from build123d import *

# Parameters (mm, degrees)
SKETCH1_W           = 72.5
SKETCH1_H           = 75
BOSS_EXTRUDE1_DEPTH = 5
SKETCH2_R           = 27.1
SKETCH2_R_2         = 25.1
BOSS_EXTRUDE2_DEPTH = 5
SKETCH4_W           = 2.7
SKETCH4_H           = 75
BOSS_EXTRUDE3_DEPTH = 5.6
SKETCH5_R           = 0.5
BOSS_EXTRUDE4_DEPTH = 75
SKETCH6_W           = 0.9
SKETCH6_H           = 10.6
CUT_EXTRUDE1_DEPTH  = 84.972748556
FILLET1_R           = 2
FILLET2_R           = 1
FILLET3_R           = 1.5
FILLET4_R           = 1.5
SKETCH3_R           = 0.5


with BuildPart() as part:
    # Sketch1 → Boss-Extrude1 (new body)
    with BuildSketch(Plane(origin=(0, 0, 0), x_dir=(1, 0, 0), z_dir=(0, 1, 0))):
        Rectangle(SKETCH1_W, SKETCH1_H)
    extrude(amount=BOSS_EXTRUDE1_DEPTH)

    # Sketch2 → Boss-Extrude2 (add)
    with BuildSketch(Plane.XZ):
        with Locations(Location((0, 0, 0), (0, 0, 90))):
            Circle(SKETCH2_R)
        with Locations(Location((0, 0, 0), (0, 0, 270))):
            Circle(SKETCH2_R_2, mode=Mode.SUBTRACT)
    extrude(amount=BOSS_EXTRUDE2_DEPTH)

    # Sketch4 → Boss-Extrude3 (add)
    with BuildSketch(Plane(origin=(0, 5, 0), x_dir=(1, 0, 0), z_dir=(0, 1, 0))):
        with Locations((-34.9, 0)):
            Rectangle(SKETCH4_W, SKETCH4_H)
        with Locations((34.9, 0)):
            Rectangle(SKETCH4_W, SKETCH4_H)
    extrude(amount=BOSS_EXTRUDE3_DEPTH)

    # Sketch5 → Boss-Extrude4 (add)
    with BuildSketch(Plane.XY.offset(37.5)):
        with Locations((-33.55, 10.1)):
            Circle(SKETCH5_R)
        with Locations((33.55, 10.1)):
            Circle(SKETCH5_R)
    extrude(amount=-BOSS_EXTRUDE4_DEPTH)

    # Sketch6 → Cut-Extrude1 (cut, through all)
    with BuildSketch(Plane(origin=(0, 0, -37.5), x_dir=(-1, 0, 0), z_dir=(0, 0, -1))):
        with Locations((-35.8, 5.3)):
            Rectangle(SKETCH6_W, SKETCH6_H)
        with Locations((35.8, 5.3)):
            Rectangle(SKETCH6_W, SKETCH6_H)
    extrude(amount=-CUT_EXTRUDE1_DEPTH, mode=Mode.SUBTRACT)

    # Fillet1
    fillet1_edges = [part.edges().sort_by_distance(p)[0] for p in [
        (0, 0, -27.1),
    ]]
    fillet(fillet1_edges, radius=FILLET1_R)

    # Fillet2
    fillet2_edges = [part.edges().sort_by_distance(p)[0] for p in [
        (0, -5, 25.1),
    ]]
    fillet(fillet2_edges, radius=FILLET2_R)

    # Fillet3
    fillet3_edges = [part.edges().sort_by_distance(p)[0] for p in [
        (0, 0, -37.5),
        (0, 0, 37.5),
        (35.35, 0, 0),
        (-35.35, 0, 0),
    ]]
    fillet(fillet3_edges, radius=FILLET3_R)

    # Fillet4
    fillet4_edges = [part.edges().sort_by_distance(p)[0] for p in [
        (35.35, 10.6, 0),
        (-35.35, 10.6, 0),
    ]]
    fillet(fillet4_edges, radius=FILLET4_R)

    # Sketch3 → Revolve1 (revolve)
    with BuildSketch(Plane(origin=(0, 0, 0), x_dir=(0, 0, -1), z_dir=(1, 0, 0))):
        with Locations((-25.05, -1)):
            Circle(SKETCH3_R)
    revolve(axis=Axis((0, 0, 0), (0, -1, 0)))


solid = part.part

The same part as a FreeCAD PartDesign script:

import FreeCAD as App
import Part
import Sketcher
from FreeCAD import Vector


def edges_at(feature, points):
    """Names of the edges that pass closest to the given points."""
    edges = feature.Shape.Edges
    near = lambda p: min(range(len(edges)), key=lambda i: edges[i].distToShape(Part.Vertex(*p))[0])
    return sorted({f"Edge{near(p) + 1}" for p in points})

doc = App.newDocument("Part")
body = doc.addObject("PartDesign::Body", "Body")

# Sketch on XZ plane
sketch1 = body.newObject("Sketcher::SketchObject", "Sketch")
sketch1.AttachmentSupport = (doc.getObject("XZ_Plane"), [""])
sketch1.MapMode = "FlatFace"
sketch1.addGeometry([
    Part.LineSegment(Vector(-36.25, -37.5, 0), Vector(-36.25, 37.5, 0)),
    Part.LineSegment(Vector(-36.25, 37.5, 0), Vector(36.25, 37.5, 0)),
    Part.LineSegment(Vector(36.25, 37.5, 0), Vector(36.25, -37.5, 0)),
    Part.LineSegment(Vector(36.25, -37.5, 0), Vector(-36.25, -37.5, 0)),
], False)
sketch1.addConstraint([
    Sketcher.Constraint("Coincident", 0, 2, 1, 1),
    Sketcher.Constraint("Coincident", 1, 2, 2, 1),
    Sketcher.Constraint("Coincident", 2, 2, 3, 1),
    Sketcher.Constraint("Coincident", 3, 2, 0, 1),
    Sketcher.Constraint("Vertical", 0),
    Sketcher.Constraint("Horizontal", 1),
    Sketcher.Constraint("Vertical", 2),
    Sketcher.Constraint("Horizontal", 3),
    Sketcher.Constraint("Symmetric", 0, 2, 2, 2, -1, 1),
    Sketcher.Constraint("DistanceY", 0, 1, 0, 2, 75.0),
    Sketcher.Constraint("DistanceX", 1, 1, 1, 2, 72.5),
])
pad1 = body.newObject("PartDesign::Pad", "Pad")
pad1.Profile = sketch1
pad1.Length = 5
pad1.Reversed = True

# Sketch on XZ plane
sketch2 = body.newObject("Sketcher::SketchObject", "Sketch001")
sketch2.AttachmentSupport = (doc.getObject("XZ_Plane"), [""])
sketch2.MapMode = "FlatFace"
sketch2.addGeometry([
    Part.Circle(Vector(0, 0, 0), Vector(0, 0, 1), 27.1),
    Part.Circle(Vector(0, 0, 0), Vector(0, 0, 1), 25.1),
], False)
sketch2.addConstraint([
    Sketcher.Constraint("Coincident", 0, 3, -1, 1),
    Sketcher.Constraint("Coincident", 1, 3, -1, 1),
    Sketcher.Constraint("Diameter", 0, 54.2),
    Sketcher.Constraint("Diameter", 1, 50.2),
])
pad2 = body.newObject("PartDesign::Pad", "Pad001")
pad2.Profile = sketch2
pad2.Length = 5

# Sketch on XZ plane
sketch3 = body.newObject("Sketcher::SketchObject", "Sketch002")
sketch3.AttachmentSupport = (doc.getObject("XZ_Plane"), [""])
sketch3.MapMode = "FlatFace"
sketch3.AttachmentOffset = App.Placement(Vector(0, 0, -5), App.Rotation())
sketch3.addGeometry([
    Part.LineSegment(Vector(-36.25, -37.5, 0), Vector(-36.25, 37.5, 0)),  # 0
    Part.LineSegment(Vector(-36.25, 37.5, 0), Vector(-33.55, 37.5, 0)),  # 1
    Part.LineSegment(Vector(-33.55, 37.5, 0), Vector(-33.55, -37.5, 0)),  # 2
    Part.LineSegment(Vector(-33.55, -37.5, 0), Vector(-36.25, -37.5, 0)),  # 3
    Part.LineSegment(Vector(33.55, -37.5, 0), Vector(33.55, 37.5, 0)),  # 4
    Part.LineSegment(Vector(33.55, 37.5, 0), Vector(36.25, 37.5, 0)),  # 5
    Part.LineSegment(Vector(36.25, 37.5, 0), Vector(36.25, -37.5, 0)),  # 6
    Part.LineSegment(Vector(36.25, -37.5, 0), Vector(33.55, -37.5, 0)),  # 7
], False)
sketch3.addConstraint([
    Sketcher.Constraint("Coincident", 0, 2, 1, 1),
    Sketcher.Constraint("Coincident", 1, 2, 2, 1),
    Sketcher.Constraint("Coincident", 2, 2, 3, 1),
    Sketcher.Constraint("Coincident", 3, 2, 0, 1),
    Sketcher.Constraint("Coincident", 4, 2, 5, 1),
    Sketcher.Constraint("Coincident", 5, 2, 6, 1),
    Sketcher.Constraint("Coincident", 6, 2, 7, 1),
    Sketcher.Constraint("Coincident", 7, 2, 4, 1),
    Sketcher.Constraint("Vertical", 0),
    Sketcher.Constraint("Horizontal", 1),
    Sketcher.Constraint("Vertical", 2),
    Sketcher.Constraint("Horizontal", 3),
    Sketcher.Constraint("Vertical", 4),
    Sketcher.Constraint("Horizontal", 5),
    Sketcher.Constraint("Vertical", 6),
    Sketcher.Constraint("Horizontal", 7),
    Sketcher.Constraint("Symmetric", 2, 2, 4, 2, -1, 1),
    Sketcher.Constraint("Symmetric", 0, 2, 6, 2, -1, 1),
    Sketcher.Constraint("Horizontal", 1, 2, 4, 2),
    Sketcher.Constraint("DistanceY", 0, 1, 0, 2, 75.0),
    Sketcher.Constraint("DistanceX", 1, 1, 1, 2, 2.7),
    Sketcher.Constraint("DistanceX", 1, 2, 4, 2, 67.1),
])
pad3 = body.newObject("PartDesign::Pad", "Pad002")
pad3.Profile = sketch3
pad3.Length = 5.6
pad3.Reversed = True

# Sketch on XY plane
sketch4 = body.newObject("Sketcher::SketchObject", "Sketch003")
sketch4.AttachmentSupport = (doc.getObject("XY_Plane"), [""])
sketch4.MapMode = "FlatFace"
sketch4.AttachmentOffset = App.Placement(Vector(0, 0, 37.5), App.Rotation())
sketch4.addGeometry([
    Part.Circle(Vector(-33.55, 10.1, 0), Vector(0, 0, 1), 0.5),
    Part.Circle(Vector(33.55, 10.1, 0), Vector(0, 0, 1), 0.5),
], False)
sketch4.addConstraint([
    Sketcher.Constraint("Equal", 0, 1),
    Sketcher.Constraint("Symmetric", 0, 3, 1, 3, -2),
    Sketcher.Constraint("Diameter", 0, 1.0),
    Sketcher.Constraint("DistanceY", -1, 1, 0, 3, 10.1),
    Sketcher.Constraint("DistanceX", 0, 3, 1, 3, 67.1),
])
pad4 = body.newObject("PartDesign::Pad", "Pad003")
pad4.Profile = sketch4
pad4.Length = 75
pad4.Reversed = True

# Sketch on XY plane
sketch5 = body.newObject("Sketcher::SketchObject", "Sketch004")
sketch5.AttachmentSupport = (doc.getObject("XY_Plane"), [""])
sketch5.MapMode = "FlatFace"
sketch5.AttachmentOffset = App.Placement(Vector(0, 0, -37.5), App.Rotation())
sketch5.addGeometry([
    Part.LineSegment(Vector(36.25, 10.6, 0), Vector(36.25, 0, 0)),  # 0
    Part.LineSegment(Vector(36.25, 0, 0), Vector(35.35, 0, 0)),  # 1
    Part.LineSegment(Vector(35.35, 0, 0), Vector(35.35, 10.6, 0)),  # 2
    Part.LineSegment(Vector(35.35, 10.6, 0), Vector(36.25, 10.6, 0)),  # 3
    Part.LineSegment(Vector(-35.35, 10.6, 0), Vector(-35.35, 0, 0)),  # 4
    Part.LineSegment(Vector(-35.35, 0, 0), Vector(-36.25, 0, 0)),  # 5
    Part.LineSegment(Vector(-36.25, 0, 0), Vector(-36.25, 10.6, 0)),  # 6
    Part.LineSegment(Vector(-36.25, 10.6, 0), Vector(-35.35, 10.6, 0)),  # 7
], False)
sketch5.addConstraint([
    Sketcher.Constraint("Coincident", 0, 2, 1, 1),
    Sketcher.Constraint("Coincident", 1, 2, 2, 1),
    Sketcher.Constraint("Coincident", 2, 2, 3, 1),
    Sketcher.Constraint("Coincident", 3, 2, 0, 1),
    Sketcher.Constraint("Coincident", 4, 2, 5, 1),
    Sketcher.Constraint("Coincident", 5, 2, 6, 1),
    Sketcher.Constraint("Coincident", 6, 2, 7, 1),
    Sketcher.Constraint("Coincident", 7, 2, 4, 1),
    Sketcher.Constraint("Vertical", 0),
    Sketcher.Constraint("Horizontal", 1),
    Sketcher.Constraint("Vertical", 2),
    Sketcher.Constraint("Horizontal", 3),
    Sketcher.Constraint("Vertical", 4),
    Sketcher.Constraint("Horizontal", 5),
    Sketcher.Constraint("Vertical", 6),
    Sketcher.Constraint("Horizontal", 7),
    Sketcher.Constraint("Symmetric", 1, 2, 4, 2, -1, 1),
    Sketcher.Constraint("Symmetric", 0, 2, 5, 2, -2),
    Sketcher.Constraint("Horizontal", 3, 2, 6, 2),
    Sketcher.Constraint("DistanceX", 1, 2, 1, 1, 0.9),
    Sketcher.Constraint("DistanceY", 0, 2, 0, 1, 10.6),
    Sketcher.Constraint("DistanceX", 4, 2, 1, 2, 70.7),
])
pocket1 = body.newObject("PartDesign::Pocket", "Pocket")
pocket1.Profile = sketch5
pocket1.Type = "ThroughAll"
pocket1.Reversed = True
doc.recompute()

fillet = body.newObject("PartDesign::Fillet", "Fillet")
fillet.Base = (pocket1, edges_at(pocket1, [(0, 0, -27.1)]))
fillet.Radius = 2
doc.recompute()

fillet2 = body.newObject("PartDesign::Fillet", "Fillet001")
fillet2.Base = (fillet, edges_at(fillet, [(0, -5, 25.1)]))
fillet2.Radius = 1
doc.recompute()

fillet3 = body.newObject("PartDesign::Fillet", "Fillet002")
fillet3.Base = (fillet2, edges_at(fillet2, [
    (0, 0, -37.5),
    (0, 0, 37.5),
    (35.35, 0, 0),
    (-35.35, 0, 0),
]))
fillet3.Radius = 1.5
doc.recompute()

fillet4 = body.newObject("PartDesign::Fillet", "Fillet003")
fillet4.Base = (fillet3, edges_at(fillet3, [(35.35, 10.6, 0), (-35.35, 10.6, 0)]))
fillet4.Radius = 1.5

# Sketch on YZ plane
sketch6 = body.newObject("Sketcher::SketchObject", "Sketch005")
sketch6.AttachmentSupport = (doc.getObject("YZ_Plane"), [""])
sketch6.MapMode = "FlatFace"
sketch6.addGeometry(Part.Circle(Vector(-1, 25.05, 0), Vector(0, 0, 1), 0.5), False)
sketch6.addConstraint([
    Sketcher.Constraint("Diameter", 0, 1.0),
    Sketcher.Constraint("DistanceX", 0, 3, -1, 1, 1.0),
    Sketcher.Constraint("DistanceY", -1, 1, 0, 3, 25.05),
])
revolution = body.newObject("PartDesign::Revolution", "Revolution")
revolution.Profile = sketch6
revolution.ReferenceAxis = (sketch6, ["H_Axis"])
revolution.Angle = 360

doc.recompute()
